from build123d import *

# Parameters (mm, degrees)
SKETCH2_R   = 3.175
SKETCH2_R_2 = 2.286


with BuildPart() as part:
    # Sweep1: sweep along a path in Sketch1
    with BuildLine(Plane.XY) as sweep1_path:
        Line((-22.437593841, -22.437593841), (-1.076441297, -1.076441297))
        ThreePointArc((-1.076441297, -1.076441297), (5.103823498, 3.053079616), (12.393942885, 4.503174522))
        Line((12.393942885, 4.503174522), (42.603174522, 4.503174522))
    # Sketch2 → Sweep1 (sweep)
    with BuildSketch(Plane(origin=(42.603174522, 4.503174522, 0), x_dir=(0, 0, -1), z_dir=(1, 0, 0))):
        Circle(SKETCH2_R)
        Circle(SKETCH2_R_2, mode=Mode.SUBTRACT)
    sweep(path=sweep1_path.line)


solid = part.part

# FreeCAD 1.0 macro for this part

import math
import FreeCAD as App
import Part
import Sketcher
Q = App.Units.Quantity

doc = App.newDocument("Part")
body = doc.addObject("PartDesign::Body", "Body")

sketch1 = body.newObject("Sketcher::SketchObject", "Sketch")
sketch1.AttachmentSupport = (doc.getObject("YZ_Plane"), [""])
sketch1.MapMode = "FlatFace"
sketch1.AttachmentOffset = App.Placement(App.Vector(0, 0, 42.603175), App.Rotation())
sketch1.addGeometry([
    Part.Circle(App.Vector(4.503175, 0, 0), App.Vector(0, 0, 1), 3.175),
    Part.Circle(App.Vector(4.503175, 0, 0), App.Vector(0, 0, 1), 2.286),
], False)
sketch1.addConstraint([
    Sketcher.Constraint("Coincident", 1, 3, 0, 3),
    Sketcher.Constraint("PointOnObject", 0, 3, -1),
    Sketcher.Constraint("Diameter", 0, Q("0.25 in")),
    Sketcher.Constraint("Diameter", 1, Q("0.18 in")),
    Sketcher.Constraint("DistanceX", -1, 1, 0, 3, Q("4.503175 mm")),
])

sketch2 = body.newObject("Sketcher::SketchObject", "Sketch001")
sketch2.AttachmentSupport = (doc.getObject("XY_Plane"), [""])
sketch2.MapMode = "FlatFace"
sketch2.addGeometry([
    Part.LineSegment(App.Vector(-22.437594, -22.437594, 0), App.Vector(-1.076441, -1.076441, 0)),
    Part.ArcOfCircle(Part.Circle(App.Vector(12.393943, -14.546825, 0), App.Vector(0, 0, 1), 19.05), math.radians(90), math.radians(135)),
    Part.LineSegment(App.Vector(12.393943, 4.503175, 0), App.Vector(42.603175, 4.503175, 0)),
], False)
sketch2.addConstraint([
    Sketcher.Constraint("Tangent", 0, 2, 1, 2),
    Sketcher.Constraint("Tangent", 1, 1, 2, 1),
    Sketcher.Constraint("Horizontal", 2),
    Sketcher.Constraint("Radius", 1, Q("0.75 in")),
    Sketcher.Constraint("Angle", 0, Q("45 deg")),
    Sketcher.Constraint("DistanceX", 2, 1, 2, 2, Q("30.209232 mm")),
    Sketcher.Constraint("Distance", 0, Q("30.209232 mm")),
    Sketcher.Constraint("DistanceX", 0, 2, -1, 1, Q("1.076441 mm")),
    Sketcher.Constraint("DistanceY", 0, 2, -1, 1, Q("1.076441 mm")),
])
doc.recompute()

additivepipe = body.newObject("PartDesign::AdditivePipe", "AdditivePipe")
additivepipe.Profile = sketch1
additivepipe.Spine = (sketch2, ["Edge1", "Edge2", "Edge3"])

doc.recompute()
